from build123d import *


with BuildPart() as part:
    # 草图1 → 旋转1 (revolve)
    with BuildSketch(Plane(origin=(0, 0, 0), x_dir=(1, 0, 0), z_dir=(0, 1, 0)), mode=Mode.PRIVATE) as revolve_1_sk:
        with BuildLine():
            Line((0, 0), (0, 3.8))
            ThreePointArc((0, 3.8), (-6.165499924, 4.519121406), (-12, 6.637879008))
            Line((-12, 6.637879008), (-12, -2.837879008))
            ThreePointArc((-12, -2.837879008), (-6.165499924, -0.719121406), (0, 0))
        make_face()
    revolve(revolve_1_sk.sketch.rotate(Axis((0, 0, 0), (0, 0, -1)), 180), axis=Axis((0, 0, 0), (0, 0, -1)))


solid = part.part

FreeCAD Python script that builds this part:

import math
import FreeCAD as App
import Part
import Sketcher

V = App.Vector

doc = App.newDocument("Part")
body = doc.addObject("PartDesign::Body", "Body")

# Sketch on XZ plane
sketch1 = body.newObject("Sketcher::SketchObject", "Sketch")
sketch1.AttachmentSupport = (doc.getObject("XZ_Plane"), [""])
sketch1.MapMode = "FlatFace"
sketch1.addGeometry([
    Part.LineSegment(V(0, 0, 0), V(0, -3.8, 0)),
    Part.ArcOfCircle(Part.Circle(V(0, -30.59, 0), V(0, 0, 1), 26.79), math.radians(90), math.radians(116.610845)),
    Part.LineSegment(V(-12, -6.637879, 0), V(-12, 2.837879, 0)),
    Part.ArcOfCircle(Part.Circle(V(0, 26.79, 0), V(0, 0, 1), 26.79), math.radians(-116.610845), math.radians(-90)),
], False)
sketch1.addConstraint([
    Sketcher.Constraint("Coincident", 0, 2, 1, 1),
    Sketcher.Constraint("Coincident", 1, 2, 2, 1),
    Sketcher.Constraint("Coincident", 2, 2, 3, 1),
    Sketcher.Constraint("Coincident", 3, 2, 0, 1),
    Sketcher.Constraint("Vertical", 0),
    Sketcher.Constraint("Vertical", 2),
    Sketcher.Constraint("Coincident", 3, 2, -1, 1),
    Sketcher.Constraint("Equal", 1, 3),
    Sketcher.Constraint("PointOnObject", 1, 3, -2),
    Sketcher.Constraint("PointOnObject", 3, 3, -2),
    Sketcher.Constraint("Radius", 1, 26.79),
    Sketcher.Constraint("DistanceY", 0, 2, 0, 1, 3.8),
    Sketcher.Constraint("DistanceX", 1, 2, -1, 1, 12.0),
])
revolution = body.newObject("PartDesign::Revolution", "Revolution")
revolution.Profile = sketch1
revolution.ReferenceAxis = (sketch1, ["V_Axis"])
revolution.Angle = 360

doc.recompute()
